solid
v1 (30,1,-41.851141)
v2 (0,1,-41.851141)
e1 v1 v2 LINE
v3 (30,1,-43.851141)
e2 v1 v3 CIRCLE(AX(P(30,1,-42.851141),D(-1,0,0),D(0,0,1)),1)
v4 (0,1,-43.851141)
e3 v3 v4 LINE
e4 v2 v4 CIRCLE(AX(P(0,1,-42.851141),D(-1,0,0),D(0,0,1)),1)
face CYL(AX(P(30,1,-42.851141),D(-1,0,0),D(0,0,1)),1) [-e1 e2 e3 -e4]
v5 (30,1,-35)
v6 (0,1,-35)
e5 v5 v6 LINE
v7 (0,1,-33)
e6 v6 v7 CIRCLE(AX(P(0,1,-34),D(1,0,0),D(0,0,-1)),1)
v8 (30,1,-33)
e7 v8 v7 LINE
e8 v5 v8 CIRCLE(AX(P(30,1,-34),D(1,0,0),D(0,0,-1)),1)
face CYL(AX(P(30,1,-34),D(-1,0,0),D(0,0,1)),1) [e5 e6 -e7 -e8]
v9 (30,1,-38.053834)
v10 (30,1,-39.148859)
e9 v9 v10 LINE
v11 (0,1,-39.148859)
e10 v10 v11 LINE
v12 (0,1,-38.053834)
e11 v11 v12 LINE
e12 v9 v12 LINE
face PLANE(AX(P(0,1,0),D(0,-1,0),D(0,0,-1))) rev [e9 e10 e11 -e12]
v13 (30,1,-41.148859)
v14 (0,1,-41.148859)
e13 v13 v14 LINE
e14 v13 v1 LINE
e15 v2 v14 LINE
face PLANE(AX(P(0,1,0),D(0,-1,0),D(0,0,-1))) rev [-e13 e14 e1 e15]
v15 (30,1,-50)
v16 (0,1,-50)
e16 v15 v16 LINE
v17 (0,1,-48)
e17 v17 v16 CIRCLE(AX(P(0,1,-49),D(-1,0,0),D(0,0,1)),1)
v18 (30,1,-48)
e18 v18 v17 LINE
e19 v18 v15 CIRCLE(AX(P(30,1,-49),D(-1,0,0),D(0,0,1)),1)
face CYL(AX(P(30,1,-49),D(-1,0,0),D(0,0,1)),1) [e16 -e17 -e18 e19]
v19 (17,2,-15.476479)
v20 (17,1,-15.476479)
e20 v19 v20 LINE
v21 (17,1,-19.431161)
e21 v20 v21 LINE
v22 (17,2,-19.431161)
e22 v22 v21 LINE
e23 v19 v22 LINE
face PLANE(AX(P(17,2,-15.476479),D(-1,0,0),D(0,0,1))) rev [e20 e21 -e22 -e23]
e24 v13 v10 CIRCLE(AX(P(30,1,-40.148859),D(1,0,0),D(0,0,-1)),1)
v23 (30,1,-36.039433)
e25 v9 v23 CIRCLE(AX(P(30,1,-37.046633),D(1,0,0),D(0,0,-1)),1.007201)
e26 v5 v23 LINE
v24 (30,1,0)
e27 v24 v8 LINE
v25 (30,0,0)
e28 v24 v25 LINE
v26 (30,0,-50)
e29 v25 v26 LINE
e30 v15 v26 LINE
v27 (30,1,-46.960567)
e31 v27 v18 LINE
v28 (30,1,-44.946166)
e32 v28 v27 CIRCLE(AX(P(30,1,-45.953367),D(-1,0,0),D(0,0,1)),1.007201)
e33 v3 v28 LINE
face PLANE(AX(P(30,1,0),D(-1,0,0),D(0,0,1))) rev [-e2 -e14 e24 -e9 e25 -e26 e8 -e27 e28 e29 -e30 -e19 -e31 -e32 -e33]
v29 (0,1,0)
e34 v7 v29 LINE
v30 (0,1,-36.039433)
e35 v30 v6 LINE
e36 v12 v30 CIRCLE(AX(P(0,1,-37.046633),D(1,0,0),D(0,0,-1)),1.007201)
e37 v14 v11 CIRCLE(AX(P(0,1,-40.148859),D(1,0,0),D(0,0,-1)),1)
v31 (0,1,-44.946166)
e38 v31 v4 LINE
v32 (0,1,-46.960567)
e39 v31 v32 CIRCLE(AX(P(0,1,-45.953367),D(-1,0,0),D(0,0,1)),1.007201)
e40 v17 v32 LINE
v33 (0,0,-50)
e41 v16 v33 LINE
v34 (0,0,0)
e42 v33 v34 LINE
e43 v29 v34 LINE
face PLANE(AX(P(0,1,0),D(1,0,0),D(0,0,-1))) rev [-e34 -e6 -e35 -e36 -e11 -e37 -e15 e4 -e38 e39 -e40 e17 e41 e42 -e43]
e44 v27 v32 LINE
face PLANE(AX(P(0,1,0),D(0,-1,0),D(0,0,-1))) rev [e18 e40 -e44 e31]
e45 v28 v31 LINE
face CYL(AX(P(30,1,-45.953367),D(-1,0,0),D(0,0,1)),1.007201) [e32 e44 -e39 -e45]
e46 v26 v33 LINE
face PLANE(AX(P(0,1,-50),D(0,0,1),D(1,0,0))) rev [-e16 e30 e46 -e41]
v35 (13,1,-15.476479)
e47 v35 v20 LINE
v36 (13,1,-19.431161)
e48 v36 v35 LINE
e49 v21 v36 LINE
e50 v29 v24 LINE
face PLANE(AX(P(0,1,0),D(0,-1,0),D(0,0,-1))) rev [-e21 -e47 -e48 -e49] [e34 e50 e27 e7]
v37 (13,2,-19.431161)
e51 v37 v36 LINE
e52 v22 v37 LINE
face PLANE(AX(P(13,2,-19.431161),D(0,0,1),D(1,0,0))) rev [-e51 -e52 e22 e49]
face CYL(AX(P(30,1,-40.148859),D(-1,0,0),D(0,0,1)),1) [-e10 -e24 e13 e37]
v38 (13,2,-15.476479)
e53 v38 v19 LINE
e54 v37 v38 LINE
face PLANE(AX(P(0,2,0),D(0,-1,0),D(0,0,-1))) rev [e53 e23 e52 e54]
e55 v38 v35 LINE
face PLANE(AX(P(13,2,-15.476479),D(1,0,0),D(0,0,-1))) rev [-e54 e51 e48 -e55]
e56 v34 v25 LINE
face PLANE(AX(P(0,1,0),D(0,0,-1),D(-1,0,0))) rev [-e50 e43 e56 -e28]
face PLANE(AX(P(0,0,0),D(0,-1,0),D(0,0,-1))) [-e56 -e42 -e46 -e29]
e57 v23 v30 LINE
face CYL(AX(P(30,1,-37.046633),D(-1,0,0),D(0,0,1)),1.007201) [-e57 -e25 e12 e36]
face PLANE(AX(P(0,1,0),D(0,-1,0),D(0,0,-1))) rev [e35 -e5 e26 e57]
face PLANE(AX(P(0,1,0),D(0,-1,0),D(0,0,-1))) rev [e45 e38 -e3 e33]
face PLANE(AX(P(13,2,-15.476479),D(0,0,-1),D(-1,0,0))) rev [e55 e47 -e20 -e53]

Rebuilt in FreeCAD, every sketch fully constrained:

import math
import FreeCAD as App
import Part
import Sketcher
Q = App.Units.Quantity

doc = App.newDocument("Part")
body = doc.addObject("PartDesign::Body", "Body")

# Sketch on XZ plane
sketch1 = body.newObject("Sketcher::SketchObject", "Sketch")
sketch1.AttachmentSupport = (doc.getObject("XZ_Plane"), [""])
sketch1.MapMode = "FlatFace"
sketch1.addGeometry([
    Part.LineSegment(App.Vector(0, -50, 0), App.Vector(0, 0, 0)),
    Part.LineSegment(App.Vector(0, 0, 0), App.Vector(30, 0, 0)),
    Part.LineSegment(App.Vector(30, 0, 0), App.Vector(30, -50, 0)),
    Part.LineSegment(App.Vector(30, -50, 0), App.Vector(0, -50, 0)),
], False)
sketch1.addConstraint([
    Sketcher.Constraint("Coincident", 0, 2, 1, 1),
    Sketcher.Constraint("Coincident", 1, 2, 2, 1),
    Sketcher.Constraint("Coincident", 2, 2, 3, 1),
    Sketcher.Constraint("Coincident", 3, 2, 0, 1),
    Sketcher.Constraint("Vertical", 0),
    Sketcher.Constraint("Horizontal", 1),
    Sketcher.Constraint("Vertical", 2),
    Sketcher.Constraint("Horizontal", 3),
    Sketcher.Constraint("Coincident", 0, 2, -1, 1),
    Sketcher.Constraint("DistanceX", 1, 1, 1, 2, Q("30 mm")),
    Sketcher.Constraint("DistanceY", 0, 1, 0, 2, Q("50 mm")),
])
pad1 = body.newObject("PartDesign::Pad", "Pad")
pad1.Profile = sketch1
pad1.Length = 1
pad1.Reversed = True

# Sketch on YZ plane
sketch2 = body.newObject("Sketcher::SketchObject", "Sketch001")
sketch2.AttachmentSupport = (doc.getObject("YZ_Plane"), [""])
sketch2.MapMode = "FlatFace"
sketch2.addGeometry([
    Part.LineSegment(App.Vector(1, -50, 0), App.Vector(1, -48, 0)),
    Part.ArcOfCircle(Part.Circle(App.Vector(1, -49, 0), App.Vector(0, 0, 1), 1), math.radians(-90), math.radians(90)),
], False)
sketch2.addConstraint([
    Sketcher.Constraint("Coincident", 0, 1, 1, 1),
    Sketcher.Constraint("Coincident", 1, 2, 0, 2),
    Sketcher.Constraint("Vertical", 0),
    Sketcher.Constraint("Vertical", 1, 3, 0, 1),
    Sketcher.Constraint("Radius", 1, Q("1 mm")),
    Sketcher.Constraint("DistanceX", -1, 1, 1, 3, Q("1 mm")),
    Sketcher.Constraint("DistanceY", 1, 3, -1, 1, Q("49 mm")),
])
pad2 = body.newObject("PartDesign::Pad", "Pad001")
pad2.Profile = sketch2
pad2.Length = 30

# Sketch on YZ plane
sketch3 = body.newObject("Sketcher::SketchObject", "Sketch002")
sketch3.AttachmentSupport = (doc.getObject("YZ_Plane"), [""])
sketch3.MapMode = "FlatFace"
sketch3.addGeometry([
    Part.LineSegment(App.Vector(1, -47, 0), App.Vector(1, -44.9, 0)),
    Part.ArcOfCircle(Part.Circle(App.Vector(1, -46, 0), App.Vector(0, 0, 1), 1), math.radians(-90), math.radians(90)),
], False)
sketch3.addConstraint([
    Sketcher.Constraint("Coincident", 0, 1, 1, 1),
    Sketcher.Constraint("Coincident", 1, 2, 0, 2),
    Sketcher.Constraint("Vertical", 0),
    Sketcher.Constraint("Vertical", 1, 3, 0, 1),
    Sketcher.Constraint("DistanceX", -1, 1, 1, 3, Q("1 mm")),
    Sketcher.Constraint("Radius", 1, Q("1.007201 mm")),
    Sketcher.Constraint("DistanceY", 1, 3, -1, 1, Q("45.953367 mm")),
])
pad3 = body.newObject("PartDesign::Pad", "Pad002")
pad3.Profile = sketch3
pad3.Length = 30

# Sketch on YZ plane
sketch4 = body.newObject("Sketcher::SketchObject", "Sketch003")
sketch4.AttachmentSupport = (doc.getObject("YZ_Plane"), [""])
sketch4.MapMode = "FlatFace"
sketch4.addGeometry([
    Part.LineSegment(App.Vector(1, -43.9, 0), App.Vector(1, -41.9, 0)),
    Part.ArcOfCircle(Part.Circle(App.Vector(1, -42.9, 0), App.Vector(0, 0, 1), 1), math.radians(-90), math.radians(90)),
], False)
sketch4.addConstraint([
    Sketcher.Constraint("Coincident", 0, 1, 1, 1),
    Sketcher.Constraint("Coincident", 1, 2, 0, 2),
    Sketcher.Constraint("Vertical", 0),
    Sketcher.Constraint("Vertical", 1, 3, 0, 1),
    Sketcher.Constraint("Radius", 1, Q("1 mm")),
    Sketcher.Constraint("DistanceX", -1, 1, 1, 3, Q("1 mm")),
    Sketcher.Constraint("DistanceY", 1, 3, -1, 1, Q("42.851141 mm")),
])
pad4 = body.newObject("PartDesign::Pad", "Pad003")
pad4.Profile = sketch4
pad4.Length = 30
doc.recompute()

datumplane = body.newObject("PartDesign::Plane", "DatumPlane")
datumplane.AttachmentSupport = (doc.getObject("XY_Plane"), [""])
datumplane.MapMode = "FlatFace"
datumplane.AttachmentOffset = App.Placement(App.Vector(0, 0, -41.5), App.Rotation())
mirrored = body.newObject("PartDesign::Mirrored", "Mirrored")
mirrored.Originals = [pad2, pad3, pad4]
mirrored.MirrorPlane = (datumplane, [""])
body.Tip = mirrored

# Sketch on XZ plane
sketch5 = body.newObject("Sketcher::SketchObject", "Sketch004")
sketch5.AttachmentSupport = (doc.getObject("XZ_Plane"), [""])
sketch5.MapMode = "FlatFace"
sketch5.AttachmentOffset = App.Placement(App.Vector(0, 0, -1), App.Rotation())
sketch5.addGeometry([
    Part.LineSegment(App.Vector(13, -19.4, 0), App.Vector(13, -15.5, 0)),
    Part.LineSegment(App.Vector(13, -15.5, 0), App.Vector(17, -15.5, 0)),
    Part.LineSegment(App.Vector(17, -15.5, 0), App.Vector(17, -19.4, 0)),
    Part.LineSegment(App.Vector(17, -19.4, 0), App.Vector(13, -19.4, 0)),
], False)
sketch5.addConstraint([
    Sketcher.Constraint("Coincident", 0, 2, 1, 1),
    Sketcher.Constraint("Coincident", 1, 2, 2, 1),
    Sketcher.Constraint("Coincident", 2, 2, 3, 1),
    Sketcher.Constraint("Coincident", 3, 2, 0, 1),
    Sketcher.Constraint("Vertical", 0),
    Sketcher.Constraint("Horizontal", 1),
    Sketcher.Constraint("Vertical", 2),
    Sketcher.Constraint("Horizontal", 3),
    Sketcher.Constraint("DistanceX", 1, 1, 1, 2, Q("4 mm")),
    Sketcher.Constraint("DistanceX", -1, 1, 0, 2, Q("13 mm")),
    Sketcher.Constraint("DistanceY", 0, 1, 0, 2, Q("3.954683 mm")),
    Sketcher.Constraint("DistanceY", 0, 2, -1, 1, Q("15.476479 mm")),
])
pad5 = body.newObject("PartDesign::Pad", "Pad004")
pad5.Profile = sketch5
pad5.Length = 1
pad5.Reversed = True

doc.recompute()
